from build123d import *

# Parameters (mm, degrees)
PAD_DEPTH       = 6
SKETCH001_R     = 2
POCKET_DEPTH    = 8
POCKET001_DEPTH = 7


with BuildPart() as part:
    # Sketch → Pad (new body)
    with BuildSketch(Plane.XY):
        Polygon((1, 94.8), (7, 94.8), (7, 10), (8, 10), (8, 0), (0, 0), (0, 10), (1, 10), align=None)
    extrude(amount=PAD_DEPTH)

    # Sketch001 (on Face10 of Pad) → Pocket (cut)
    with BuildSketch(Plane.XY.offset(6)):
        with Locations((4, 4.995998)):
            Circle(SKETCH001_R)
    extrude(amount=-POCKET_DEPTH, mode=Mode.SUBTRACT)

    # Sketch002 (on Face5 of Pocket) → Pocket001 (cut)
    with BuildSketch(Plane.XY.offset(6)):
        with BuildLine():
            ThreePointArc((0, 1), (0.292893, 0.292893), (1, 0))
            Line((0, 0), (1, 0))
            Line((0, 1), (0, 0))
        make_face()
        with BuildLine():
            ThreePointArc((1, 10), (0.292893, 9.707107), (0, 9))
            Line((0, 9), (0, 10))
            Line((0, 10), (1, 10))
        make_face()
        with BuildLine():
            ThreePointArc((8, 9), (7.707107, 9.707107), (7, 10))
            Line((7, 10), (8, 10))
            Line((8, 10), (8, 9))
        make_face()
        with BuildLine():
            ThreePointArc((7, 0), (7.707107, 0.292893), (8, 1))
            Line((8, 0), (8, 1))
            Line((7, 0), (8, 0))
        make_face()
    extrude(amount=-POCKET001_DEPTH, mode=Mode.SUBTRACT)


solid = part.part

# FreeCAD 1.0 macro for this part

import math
import FreeCAD as App
import Part
import Sketcher
Q = App.Units.Quantity


def add_polygon(sketch, points):
    """Adds a closed chain of lines whose ends are joined by coincident constraints."""
    first, n = sketch.GeometryCount, len(points)
    for a, b in zip(points, points[1:] + points[:1]):
        sketch.addGeometry(Part.LineSegment(App.Vector(*a, 0), App.Vector(*b, 0)), False)
    for i in range(n):
        sketch.addConstraint(Sketcher.Constraint("Coincident", first + i, 2, first + (i + 1) % n, 1))

doc = App.newDocument("Part")
params = doc.addObject("Spreadsheet::Sheet", "Params")
for row, (alias, value) in enumerate([
    ("sketch1_width", "6 mm"),
    ("sketch1_width2", "1 mm"),
    ("sketch1_height", "10 mm"),
    ("sketch1_height2", "84.8 mm"),
    ("pad1_length", "6 mm"),
    ("sketch2_diameter", "4 mm"),
    ("pocket1_length", "8 mm"),
    ("sketch3_radius", "0.999999 mm"),
    ("pocket2_length", "7 mm"),
], start=1):
    params.set(f"A{row}", alias)
    params.set(f"B{row}", "=" + value)
    params.setAlias(f"B{row}", alias)

body = doc.addObject("PartDesign::Body", "Body")

sketch1 = body.newObject("Sketcher::SketchObject", "Sketch")
sketch1.AttachmentSupport = (doc.getObject("XY_Plane"), [""])
sketch1.MapMode = "FlatFace"
add_polygon(sketch1, [(7, 94.8), (1, 94.8), (1, 10), (0, 10), (0, 0), (8, 0), (8, 10), (7, 10)])
sketch1.addConstraint([
    Sketcher.Constraint("Horizontal", 0),
    Sketcher.Constraint("Vertical", 1),
    Sketcher.Constraint("Horizontal", 2),
    Sketcher.Constraint("Vertical", 3),
    Sketcher.Constraint("Horizontal", 4),
    Sketcher.Constraint("Vertical", 5),
    Sketcher.Constraint("Horizontal", 6),
    Sketcher.Constraint("Vertical", 7),
    Sketcher.Constraint("Coincident", 3, 2, -1, 1),
    Sketcher.Constraint("Horizontal", 2, 2, 5, 2),
    Sketcher.Constraint("Equal", 2, 6),
    Sketcher.Constraint("DistanceX", 0, 2, 0, 1, Q("6 mm")),
    Sketcher.Constraint("DistanceX", 2, 2, 2, 1, Q("1 mm")),
    Sketcher.Constraint("DistanceY", 3, 2, 3, 1, Q("10 mm")),
    Sketcher.Constraint("DistanceY", 1, 2, 1, 1, Q("84.8 mm")),
])
sketch1.setExpression("Constraints[19]", "Params.sketch1_width")
sketch1.setExpression("Constraints[20]", "Params.sketch1_width2")
sketch1.setExpression("Constraints[21]", "Params.sketch1_height")
sketch1.setExpression("Constraints[22]", "Params.sketch1_height2")
pad1 = body.newObject("PartDesign::Pad", "Pad")
pad1.Profile = sketch1
pad1.setExpression("Length", "Params.pad1_length")

sketch2 = body.newObject("Sketcher::SketchObject", "Sketch001")
sketch2.AttachmentSupport = (doc.getObject("XY_Plane"), [""])
sketch2.MapMode = "FlatFace"
sketch2.AttachmentOffset = App.Placement(App.Vector(0, 0, 6), App.Rotation())
sketch2.addGeometry(Part.Circle(App.Vector(4, 5, 0), App.Vector(0, 0, 1), 2), False)
sketch2.addConstraint([
    Sketcher.Constraint("Diameter", 0, Q("4 mm")),
    Sketcher.Constraint("DistanceX", -1, 1, 0, 3, Q("4 mm")),
    Sketcher.Constraint("DistanceY", -1, 1, 0, 3, Q("4.995998 mm")),
])
sketch2.setExpression("Constraints[0]", "Params.sketch2_diameter")
pocket1 = body.newObject("PartDesign::Pocket", "Pocket")
pocket1.Profile = sketch2
pocket1.setExpression("Length", "Params.pocket1_length")

sketch3 = body.newObject("Sketcher::SketchObject", "Sketch002")
sketch3.AttachmentSupport = (doc.getObject("XY_Plane"), [""])
sketch3.MapMode = "FlatFace"
sketch3.AttachmentOffset = App.Placement(App.Vector(0, 0, 6), App.Rotation())
sketch3.addGeometry([
    Part.ArcOfCircle(Part.Circle(App.Vector(1, 1, 0), App.Vector(0, 0, 1), 1), math.radians(180), math.radians(270)),
    Part.LineSegment(App.Vector(0, 1, 0), App.Vector(0, 0, 0)),
    Part.LineSegment(App.Vector(0, 0, 0), App.Vector(1, 0, 0)),
    Part.ArcOfCircle(Part.Circle(App.Vector(1, 9, 0), App.Vector(0, 0, 1), 1), math.radians(90), math.radians(180)),
    Part.LineSegment(App.Vector(1, 10, 0), App.Vector(0, 10, 0)),
    Part.LineSegment(App.Vector(0, 10, 0), App.Vector(0, 9, 0)),
    Part.ArcOfCircle(Part.Circle(App.Vector(7, 9, 0), App.Vector(0, 0, 1), 1), math.radians(0), math.radians(90)),
    Part.LineSegment(App.Vector(8, 9, 0), App.Vector(8, 10, 0)),
    Part.LineSegment(App.Vector(8, 10, 0), App.Vector(7, 10, 0)),
    Part.ArcOfCircle(Part.Circle(App.Vector(7, 1, 0), App.Vector(0, 0, 1), 1), math.radians(-90), math.radians(0)),
    Part.LineSegment(App.Vector(7, 0, 0), App.Vector(8, 0, 0)),
    Part.LineSegment(App.Vector(8, 0, 0), App.Vector(8, 1, 0)),
], False)
sketch3.addConstraint([
    Sketcher.Constraint("Tangent", 0, 1, 1, 1),
    Sketcher.Constraint("Coincident", 1, 2, 2, 1),
    Sketcher.Constraint("Tangent", 2, 2, 0, 2),
    Sketcher.Constraint("Tangent", 3, 1, 4, 1),
    Sketcher.Constraint("Coincident", 4, 2, 5, 1),
    Sketcher.Constraint("Tangent", 5, 2, 3, 2),
    Sketcher.Constraint("Tangent", 6, 1, 7, 1),
    Sketcher.Constraint("Coincident", 7, 2, 8, 1),
    Sketcher.Constraint("Tangent", 8, 2, 6, 2),
    Sketcher.Constraint("Tangent", 9, 1, 10, 1),
    Sketcher.Constraint("Coincident", 10, 2, 11, 1),
    Sketcher.Constraint("Tangent", 11, 2, 9, 2),
    Sketcher.Constraint("Vertical", 1),
    Sketcher.Constraint("Horizontal", 2),
    Sketcher.Constraint("Horizontal", 4),
    Sketcher.Constraint("Vertical", 5),
    Sketcher.Constraint("Vertical", 7),
    Sketcher.Constraint("Horizontal", 8),
    Sketcher.Constraint("Horizontal", 10),
    Sketcher.Constraint("Vertical", 11),
    Sketcher.Constraint("Coincident", 1, 2, -1, 1),
    Sketcher.Constraint("Equal", 0, 3),
    Sketcher.Constraint("Equal", 3, 6),
    Sketcher.Constraint("Equal", 6, 9),
    Sketcher.Constraint("PointOnObject", 4, 2, -2),
    Sketcher.Constraint("PointOnObject", 9, 1, -1),
    Sketcher.Constraint("Horizontal", 3, 3, 6, 3),
    Sketcher.Constraint("Vertical", 6, 3, 9, 3),
    Sketcher.Constraint("Radius", 0, Q("0.999999 mm")),
    Sketcher.Constraint("DistanceY", -1, 1, 3, 3, Q("9.000001 mm")),
    Sketcher.Constraint("DistanceX", -1, 1, 6, 3, Q("7.000001 mm")),
])
sketch3.setExpression("Constraints[28]", "Params.sketch3_radius")
pocket2 = body.newObject("PartDesign::Pocket", "Pocket001")
pocket2.Profile = sketch3
pocket2.setExpression("Length", "Params.pocket2_length")

doc.recompute()
